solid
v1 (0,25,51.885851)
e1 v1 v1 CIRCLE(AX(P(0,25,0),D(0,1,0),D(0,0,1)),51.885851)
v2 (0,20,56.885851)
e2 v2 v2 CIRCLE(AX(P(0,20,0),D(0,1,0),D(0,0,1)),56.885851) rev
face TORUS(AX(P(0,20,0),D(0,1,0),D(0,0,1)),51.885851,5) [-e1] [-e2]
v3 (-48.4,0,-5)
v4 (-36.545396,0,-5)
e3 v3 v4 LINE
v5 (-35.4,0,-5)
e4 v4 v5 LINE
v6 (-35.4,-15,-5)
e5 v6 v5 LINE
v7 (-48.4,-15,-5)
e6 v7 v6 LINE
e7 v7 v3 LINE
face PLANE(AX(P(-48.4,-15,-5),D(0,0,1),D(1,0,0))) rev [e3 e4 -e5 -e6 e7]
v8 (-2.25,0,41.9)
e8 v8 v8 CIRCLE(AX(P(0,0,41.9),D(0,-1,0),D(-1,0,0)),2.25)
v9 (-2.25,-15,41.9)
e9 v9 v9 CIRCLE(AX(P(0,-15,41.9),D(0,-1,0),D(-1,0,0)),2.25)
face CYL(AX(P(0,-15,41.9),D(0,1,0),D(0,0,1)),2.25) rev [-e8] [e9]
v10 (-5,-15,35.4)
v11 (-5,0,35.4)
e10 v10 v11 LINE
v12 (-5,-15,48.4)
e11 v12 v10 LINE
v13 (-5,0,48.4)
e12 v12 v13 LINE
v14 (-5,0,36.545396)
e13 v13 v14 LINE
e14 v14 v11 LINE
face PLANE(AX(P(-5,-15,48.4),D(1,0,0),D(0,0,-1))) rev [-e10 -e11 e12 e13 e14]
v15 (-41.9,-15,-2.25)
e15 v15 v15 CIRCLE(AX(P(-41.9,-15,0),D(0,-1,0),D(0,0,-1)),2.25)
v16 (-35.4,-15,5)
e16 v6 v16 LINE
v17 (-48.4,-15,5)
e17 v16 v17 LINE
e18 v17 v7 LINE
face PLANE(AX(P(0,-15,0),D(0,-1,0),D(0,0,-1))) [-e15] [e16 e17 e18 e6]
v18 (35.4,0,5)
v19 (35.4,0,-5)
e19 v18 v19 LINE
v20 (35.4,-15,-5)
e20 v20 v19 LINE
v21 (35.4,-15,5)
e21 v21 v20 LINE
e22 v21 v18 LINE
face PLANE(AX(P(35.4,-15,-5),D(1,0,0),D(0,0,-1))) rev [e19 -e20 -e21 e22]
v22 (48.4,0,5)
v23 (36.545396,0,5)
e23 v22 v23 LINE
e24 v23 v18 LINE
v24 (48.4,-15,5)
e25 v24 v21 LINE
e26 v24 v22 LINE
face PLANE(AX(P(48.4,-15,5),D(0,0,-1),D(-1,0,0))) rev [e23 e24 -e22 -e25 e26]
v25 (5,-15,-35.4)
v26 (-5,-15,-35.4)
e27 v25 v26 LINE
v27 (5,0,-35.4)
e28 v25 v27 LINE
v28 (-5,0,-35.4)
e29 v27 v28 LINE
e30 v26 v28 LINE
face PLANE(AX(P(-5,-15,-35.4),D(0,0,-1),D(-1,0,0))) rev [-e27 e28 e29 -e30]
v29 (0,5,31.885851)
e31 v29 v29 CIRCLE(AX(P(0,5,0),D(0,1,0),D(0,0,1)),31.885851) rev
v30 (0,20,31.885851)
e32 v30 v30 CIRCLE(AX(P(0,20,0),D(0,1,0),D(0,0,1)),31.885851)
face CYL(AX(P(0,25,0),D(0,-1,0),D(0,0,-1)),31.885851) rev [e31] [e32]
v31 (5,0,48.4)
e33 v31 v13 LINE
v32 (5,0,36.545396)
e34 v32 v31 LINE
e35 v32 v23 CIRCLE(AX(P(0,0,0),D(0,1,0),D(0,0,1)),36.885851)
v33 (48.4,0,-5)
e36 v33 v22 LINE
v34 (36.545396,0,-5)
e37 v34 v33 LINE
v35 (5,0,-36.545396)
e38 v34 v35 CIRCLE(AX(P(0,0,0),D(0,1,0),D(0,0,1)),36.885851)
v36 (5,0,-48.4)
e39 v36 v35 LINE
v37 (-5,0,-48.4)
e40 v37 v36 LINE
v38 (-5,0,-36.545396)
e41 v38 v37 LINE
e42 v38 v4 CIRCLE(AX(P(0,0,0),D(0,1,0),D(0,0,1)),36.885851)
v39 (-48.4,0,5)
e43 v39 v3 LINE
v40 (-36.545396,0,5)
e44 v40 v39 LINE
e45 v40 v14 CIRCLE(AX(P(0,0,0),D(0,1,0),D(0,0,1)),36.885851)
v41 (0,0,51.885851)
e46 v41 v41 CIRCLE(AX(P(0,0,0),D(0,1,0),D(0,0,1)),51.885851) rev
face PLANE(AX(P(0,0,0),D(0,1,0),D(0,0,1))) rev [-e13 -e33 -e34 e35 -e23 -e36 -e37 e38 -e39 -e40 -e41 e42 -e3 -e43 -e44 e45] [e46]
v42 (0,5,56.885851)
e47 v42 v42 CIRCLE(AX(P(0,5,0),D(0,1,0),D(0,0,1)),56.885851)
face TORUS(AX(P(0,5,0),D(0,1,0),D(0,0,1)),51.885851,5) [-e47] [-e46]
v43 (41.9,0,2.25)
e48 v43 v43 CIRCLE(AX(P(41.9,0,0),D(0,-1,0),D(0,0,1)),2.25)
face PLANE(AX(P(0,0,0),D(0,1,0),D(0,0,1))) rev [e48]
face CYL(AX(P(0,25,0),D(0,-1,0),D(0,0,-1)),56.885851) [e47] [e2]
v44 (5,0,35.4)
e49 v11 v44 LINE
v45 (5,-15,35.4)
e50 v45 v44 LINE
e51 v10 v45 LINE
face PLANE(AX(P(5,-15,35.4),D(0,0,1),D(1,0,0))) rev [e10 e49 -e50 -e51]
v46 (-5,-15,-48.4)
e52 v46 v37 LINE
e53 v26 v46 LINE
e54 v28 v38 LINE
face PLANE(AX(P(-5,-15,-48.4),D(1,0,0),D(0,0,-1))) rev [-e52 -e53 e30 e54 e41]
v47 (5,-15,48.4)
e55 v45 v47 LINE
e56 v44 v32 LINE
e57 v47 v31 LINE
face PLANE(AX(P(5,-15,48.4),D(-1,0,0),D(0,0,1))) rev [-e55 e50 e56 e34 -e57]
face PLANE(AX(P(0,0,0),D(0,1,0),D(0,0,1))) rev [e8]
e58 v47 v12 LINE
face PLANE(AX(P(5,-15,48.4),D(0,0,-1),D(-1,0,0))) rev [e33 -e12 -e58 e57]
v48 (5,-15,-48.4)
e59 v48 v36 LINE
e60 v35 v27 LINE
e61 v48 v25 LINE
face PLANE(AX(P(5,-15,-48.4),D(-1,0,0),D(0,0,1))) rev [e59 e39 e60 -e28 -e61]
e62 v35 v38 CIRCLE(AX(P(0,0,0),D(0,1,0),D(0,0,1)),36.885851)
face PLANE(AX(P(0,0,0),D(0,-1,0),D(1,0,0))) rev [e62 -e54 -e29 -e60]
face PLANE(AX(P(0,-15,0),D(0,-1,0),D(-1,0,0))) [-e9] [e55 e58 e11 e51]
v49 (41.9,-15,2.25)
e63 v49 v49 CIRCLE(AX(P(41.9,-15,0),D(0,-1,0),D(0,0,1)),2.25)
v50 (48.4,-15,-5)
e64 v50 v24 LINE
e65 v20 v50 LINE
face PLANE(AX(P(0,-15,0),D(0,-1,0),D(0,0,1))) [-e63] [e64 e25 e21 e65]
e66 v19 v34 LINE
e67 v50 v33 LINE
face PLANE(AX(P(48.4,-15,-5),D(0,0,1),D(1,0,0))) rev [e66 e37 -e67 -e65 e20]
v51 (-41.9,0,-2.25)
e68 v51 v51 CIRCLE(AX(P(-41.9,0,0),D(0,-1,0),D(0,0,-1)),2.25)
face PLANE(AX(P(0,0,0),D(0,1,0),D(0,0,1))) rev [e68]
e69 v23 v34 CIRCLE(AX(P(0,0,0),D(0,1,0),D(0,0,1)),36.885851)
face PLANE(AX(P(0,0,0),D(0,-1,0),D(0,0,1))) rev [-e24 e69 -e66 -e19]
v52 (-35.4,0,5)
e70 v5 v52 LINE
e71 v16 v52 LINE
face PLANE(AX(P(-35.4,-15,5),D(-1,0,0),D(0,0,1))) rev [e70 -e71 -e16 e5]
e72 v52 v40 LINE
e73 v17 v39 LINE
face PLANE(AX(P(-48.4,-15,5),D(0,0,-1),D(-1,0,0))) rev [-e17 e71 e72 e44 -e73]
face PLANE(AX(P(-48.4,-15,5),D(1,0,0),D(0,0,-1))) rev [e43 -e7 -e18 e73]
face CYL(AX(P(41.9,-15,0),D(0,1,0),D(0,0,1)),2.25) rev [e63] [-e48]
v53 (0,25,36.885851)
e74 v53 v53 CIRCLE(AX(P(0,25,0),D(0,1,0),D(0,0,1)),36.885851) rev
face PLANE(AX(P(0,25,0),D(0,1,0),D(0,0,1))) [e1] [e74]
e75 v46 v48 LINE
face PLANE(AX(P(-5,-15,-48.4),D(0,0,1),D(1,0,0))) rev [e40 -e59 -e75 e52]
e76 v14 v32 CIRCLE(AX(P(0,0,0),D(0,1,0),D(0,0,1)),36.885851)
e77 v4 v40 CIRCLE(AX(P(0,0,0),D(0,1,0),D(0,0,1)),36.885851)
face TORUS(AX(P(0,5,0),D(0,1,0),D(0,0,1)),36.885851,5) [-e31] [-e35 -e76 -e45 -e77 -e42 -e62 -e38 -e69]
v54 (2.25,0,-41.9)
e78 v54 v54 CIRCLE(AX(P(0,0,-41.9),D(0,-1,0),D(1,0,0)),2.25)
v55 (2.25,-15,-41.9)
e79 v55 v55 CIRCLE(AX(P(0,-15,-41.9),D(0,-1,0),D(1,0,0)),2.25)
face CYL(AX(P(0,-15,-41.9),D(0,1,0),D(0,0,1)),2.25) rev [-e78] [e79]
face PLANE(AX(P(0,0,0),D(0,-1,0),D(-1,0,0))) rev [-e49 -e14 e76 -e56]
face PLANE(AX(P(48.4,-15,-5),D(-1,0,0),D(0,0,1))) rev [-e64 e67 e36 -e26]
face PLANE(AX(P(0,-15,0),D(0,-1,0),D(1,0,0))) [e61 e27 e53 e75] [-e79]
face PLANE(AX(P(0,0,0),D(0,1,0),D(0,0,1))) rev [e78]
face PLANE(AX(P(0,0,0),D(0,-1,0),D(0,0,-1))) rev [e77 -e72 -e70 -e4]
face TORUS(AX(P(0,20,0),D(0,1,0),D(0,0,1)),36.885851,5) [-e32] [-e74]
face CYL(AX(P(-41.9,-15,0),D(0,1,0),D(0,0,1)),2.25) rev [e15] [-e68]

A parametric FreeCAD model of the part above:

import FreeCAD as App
import Part
import Sketcher


def edges_at(feature, points):
    """Names of the edges that pass closest to the given points."""
    edges = feature.Shape.Edges
    near = lambda p: min(range(len(edges)), key=lambda i: edges[i].distToShape(Part.Vertex(*p))[0])
    return sorted({f"Edge{near(p) + 1}" for p in points})


def add_polygon(sketch, points):
    """Adds a closed chain of lines whose ends are joined by coincident constraints."""
    first, n = sketch.GeometryCount, len(points)
    for a, b in zip(points, points[1:] + points[:1]):
        sketch.addGeometry(Part.LineSegment(App.Vector(*a, 0), App.Vector(*b, 0)), False)
    for i in range(n):
        sketch.addConstraint(Sketcher.Constraint("Coincident", first + i, 2, first + (i + 1) % n, 1))

doc = App.newDocument("Part")
body = doc.addObject("PartDesign::Body", "Body")

# Sketch on XZ plane
sketch1 = doc.addObject("Sketcher::SketchObject", "Sketch")
body.addObject(sketch1)
sketch1.AttachmentSupport = (doc.XZ_Plane, [""])
sketch1.MapMode = "FlatFace"
sketch1.addGeometry(Part.Circle(App.Vector(0, 0, 0), App.Vector(0, 0, 1), 57), False)
sketch1.addGeometry(Part.Circle(App.Vector(0, 0, 0), App.Vector(0, 0, 1), 32), False)
sketch1.addConstraint(Sketcher.Constraint("Coincident", 0, 3, -1, 1))
sketch1.addConstraint(Sketcher.Constraint("Coincident", 1, 3, -1, 1))
sketch1.addConstraint(Sketcher.Constraint("Diameter", 0, 113.771701))
sketch1.addConstraint(Sketcher.Constraint("Diameter", 1, 63.771701))
pad1 = doc.addObject("PartDesign::Pad", "Pad")
body.addObject(pad1)
pad1.Profile = sketch1
pad1.Length = 25
pad1.Reversed = True
doc.recompute()

fillet = doc.addObject("PartDesign::Fillet", "Fillet")
body.addObject(fillet)
fillet.Base = (pad1, edges_at(pad1, [
    (-56.886, 0, 0),
    (-56.886, 25, 0),
    (-31.886, 0, 0),
    (-31.886, 25, 0),
]))
fillet.Radius = 5

# Sketch on XZ plane
sketch2 = doc.addObject("Sketcher::SketchObject", "Sketch001")
body.addObject(sketch2)
sketch2.AttachmentSupport = (doc.XZ_Plane, [""])
sketch2.MapMode = "FlatFace"
add_polygon(sketch2, [(-48.4, 5), (-48.4, -5), (-35.4, -5), (-35.4, 5)])  # lines 0-3
sketch2.addGeometry(Part.Circle(App.Vector(-41.9, 0, 0), App.Vector(0, 0, 1), 2.2), False)  # 4
sketch2.addConstraint(Sketcher.Constraint("Vertical", 0))
sketch2.addConstraint(Sketcher.Constraint("Horizontal", 1))
sketch2.addConstraint(Sketcher.Constraint("Vertical", 2))
sketch2.addConstraint(Sketcher.Constraint("Horizontal", 3))
sketch2.addConstraint(Sketcher.Constraint("PointOnObject", 4, 3, -1))
sketch2.addConstraint(Sketcher.Constraint("Diameter", 4, 4.5))
sketch2.addConstraint(Sketcher.Constraint("DistanceX", 1, 1, 1, 2, 13.0))
sketch2.addConstraint(Sketcher.Constraint("DistanceY", 0, 2, 0, 1, 10.0))
sketch2.addConstraint(Sketcher.Constraint("DistanceY", 0, 2, -1, 1, 5.0))
sketch2.addConstraint(Sketcher.Constraint("DistanceX", 4, 3, -1, 1, 41.9))
sketch2.addConstraint(Sketcher.Constraint("DistanceX", 0, 2, -1, 1, 48.4))
pad2 = doc.addObject("PartDesign::Pad", "Pad001")
body.addObject(pad2)
pad2.Profile = sketch2
pad2.Length = 15
doc.recompute()

polarpattern = doc.addObject("PartDesign::PolarPattern", "PolarPattern")
body.addObject(polarpattern)
polarpattern.Originals = [pad2]
polarpattern.Axis = (doc.Y_Axis, [""])
polarpattern.Angle = 360
polarpattern.Occurrences = 4
body.Tip = polarpattern

doc.recompute()
